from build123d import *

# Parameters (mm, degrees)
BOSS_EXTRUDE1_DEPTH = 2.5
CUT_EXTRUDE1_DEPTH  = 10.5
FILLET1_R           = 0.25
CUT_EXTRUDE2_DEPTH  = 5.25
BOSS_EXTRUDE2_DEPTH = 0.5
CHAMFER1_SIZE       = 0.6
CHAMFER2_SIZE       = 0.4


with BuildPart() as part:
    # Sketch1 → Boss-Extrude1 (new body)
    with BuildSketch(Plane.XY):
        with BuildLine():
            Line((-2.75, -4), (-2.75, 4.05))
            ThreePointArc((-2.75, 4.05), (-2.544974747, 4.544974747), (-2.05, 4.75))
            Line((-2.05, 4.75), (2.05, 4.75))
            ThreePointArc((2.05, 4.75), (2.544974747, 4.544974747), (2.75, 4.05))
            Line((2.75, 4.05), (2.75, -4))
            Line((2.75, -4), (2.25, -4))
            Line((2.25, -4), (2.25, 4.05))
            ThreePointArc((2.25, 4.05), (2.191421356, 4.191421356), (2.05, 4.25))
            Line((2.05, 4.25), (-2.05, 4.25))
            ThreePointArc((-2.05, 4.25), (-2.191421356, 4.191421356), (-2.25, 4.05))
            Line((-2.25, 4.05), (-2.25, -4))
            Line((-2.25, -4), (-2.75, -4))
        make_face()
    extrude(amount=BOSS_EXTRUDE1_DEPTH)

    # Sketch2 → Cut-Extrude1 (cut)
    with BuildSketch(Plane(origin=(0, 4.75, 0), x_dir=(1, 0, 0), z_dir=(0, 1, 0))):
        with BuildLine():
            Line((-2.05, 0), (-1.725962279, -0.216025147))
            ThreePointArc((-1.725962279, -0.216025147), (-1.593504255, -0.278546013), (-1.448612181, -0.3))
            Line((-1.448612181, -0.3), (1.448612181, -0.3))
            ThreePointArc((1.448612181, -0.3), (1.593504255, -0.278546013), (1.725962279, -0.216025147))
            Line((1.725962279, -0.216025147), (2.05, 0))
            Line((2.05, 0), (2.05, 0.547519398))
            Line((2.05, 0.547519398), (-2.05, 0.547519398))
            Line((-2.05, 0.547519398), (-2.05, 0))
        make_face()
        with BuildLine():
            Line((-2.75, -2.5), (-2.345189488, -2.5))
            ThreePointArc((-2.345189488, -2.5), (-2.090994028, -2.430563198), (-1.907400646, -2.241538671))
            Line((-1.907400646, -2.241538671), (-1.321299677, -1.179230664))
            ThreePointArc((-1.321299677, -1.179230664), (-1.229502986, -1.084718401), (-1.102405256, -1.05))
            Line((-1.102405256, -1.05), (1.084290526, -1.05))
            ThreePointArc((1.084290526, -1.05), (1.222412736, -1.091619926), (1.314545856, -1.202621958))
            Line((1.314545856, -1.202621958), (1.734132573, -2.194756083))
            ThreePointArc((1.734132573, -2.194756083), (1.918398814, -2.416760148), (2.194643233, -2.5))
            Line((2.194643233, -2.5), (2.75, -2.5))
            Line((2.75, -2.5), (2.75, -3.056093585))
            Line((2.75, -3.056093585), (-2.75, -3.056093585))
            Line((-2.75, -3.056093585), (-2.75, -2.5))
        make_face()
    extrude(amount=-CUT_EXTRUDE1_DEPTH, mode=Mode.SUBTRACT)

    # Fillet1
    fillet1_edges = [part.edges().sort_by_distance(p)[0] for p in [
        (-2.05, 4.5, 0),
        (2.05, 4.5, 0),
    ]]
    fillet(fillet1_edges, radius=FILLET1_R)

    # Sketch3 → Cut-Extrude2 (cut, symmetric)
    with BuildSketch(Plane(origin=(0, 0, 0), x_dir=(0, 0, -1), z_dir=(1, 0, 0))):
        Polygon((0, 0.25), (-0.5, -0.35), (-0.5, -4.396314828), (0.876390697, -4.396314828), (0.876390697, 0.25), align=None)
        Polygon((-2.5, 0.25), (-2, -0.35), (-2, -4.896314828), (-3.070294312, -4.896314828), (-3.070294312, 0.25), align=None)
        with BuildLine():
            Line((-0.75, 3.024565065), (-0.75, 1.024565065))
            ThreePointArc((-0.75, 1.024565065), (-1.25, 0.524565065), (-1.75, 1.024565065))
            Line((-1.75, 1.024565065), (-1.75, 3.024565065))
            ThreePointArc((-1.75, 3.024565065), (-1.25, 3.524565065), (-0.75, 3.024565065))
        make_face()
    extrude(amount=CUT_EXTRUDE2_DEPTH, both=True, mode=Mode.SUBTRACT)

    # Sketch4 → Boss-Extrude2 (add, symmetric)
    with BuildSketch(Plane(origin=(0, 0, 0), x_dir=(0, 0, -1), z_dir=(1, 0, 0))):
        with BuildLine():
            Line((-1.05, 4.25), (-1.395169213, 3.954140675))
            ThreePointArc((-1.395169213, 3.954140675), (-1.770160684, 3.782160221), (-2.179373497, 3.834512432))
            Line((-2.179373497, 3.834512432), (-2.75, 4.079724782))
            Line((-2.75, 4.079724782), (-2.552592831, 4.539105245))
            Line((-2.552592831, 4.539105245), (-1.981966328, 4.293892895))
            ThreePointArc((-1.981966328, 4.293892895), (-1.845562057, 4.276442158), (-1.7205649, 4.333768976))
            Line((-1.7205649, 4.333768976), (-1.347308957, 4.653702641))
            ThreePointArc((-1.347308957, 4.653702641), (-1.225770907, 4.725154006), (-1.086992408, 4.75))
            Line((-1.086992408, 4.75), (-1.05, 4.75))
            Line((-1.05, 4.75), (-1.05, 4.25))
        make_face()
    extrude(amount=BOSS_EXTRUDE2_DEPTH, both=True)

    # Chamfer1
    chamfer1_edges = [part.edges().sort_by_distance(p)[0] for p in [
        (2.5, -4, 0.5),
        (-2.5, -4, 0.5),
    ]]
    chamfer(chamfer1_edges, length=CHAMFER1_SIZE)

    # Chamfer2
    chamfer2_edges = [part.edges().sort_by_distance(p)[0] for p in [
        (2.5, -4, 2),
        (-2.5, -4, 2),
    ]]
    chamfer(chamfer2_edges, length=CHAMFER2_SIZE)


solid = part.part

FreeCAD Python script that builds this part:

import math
import FreeCAD as App
import Part
import Sketcher
from FreeCAD import Vector
Q = App.Units.Quantity


def edges_at(feature, points):
    """Names of the edges that pass closest to the given points."""
    edges = feature.Shape.Edges
    near = lambda p: min(range(len(edges)), key=lambda i: edges[i].distToShape(Part.Vertex(*p))[0])
    return sorted({f"Edge{near(p) + 1}" for p in points})


def add_polygon(sketch, points):
    """Adds a closed chain of lines whose ends are joined by coincident constraints."""
    first, n = sketch.GeometryCount, len(points)
    for a, b in zip(points, points[1:] + points[:1]):
        sketch.addGeometry(Part.LineSegment(App.Vector(*a, 0), App.Vector(*b, 0)), False)
    for i in range(n):
        sketch.addConstraint(Sketcher.Constraint("Coincident", first + i, 2, first + (i + 1) % n, 1))

doc = App.newDocument("Part")
params = doc.addObject("Spreadsheet::Sheet", "Params")
for row, (alias, value) in enumerate([
    ("sketch1_radius", "0.2 mm"),
    ("sketch1_radius2", "0.7 mm"),
    ("sketch1_width", "4.1 mm"),
    ("sketch1_height", "8.05 mm"),
    ("pad1_length", "2.5 mm"),
    ("sketch2_radius", "0.5 mm"),
    ("sketch2_radius2", "0.25 mm"),
    ("sketch2_width", "4.1 mm"),
    ("sketch2_width2", "5.5 mm"),
    ("pocket1_length", "10.5 mm"),
    ("fillet_radius", "0.25 mm"),
    ("sketch3_radius", "0.5 mm"),
    ("sketch3_width", "2 mm"),
    ("pocket2_length", "10.5 mm"),
    ("sketch4_radius", "0.4 mm"),
    ("sketch4_radius2", "0.25 mm"),
    ("sketch4_radius3", "0.75 mm"),
    ("sketch4_width", "0.5 mm"),
    ("pad2_length", "1 mm"),
    ("chamfer_size", "0.6 mm"),
    ("chamfer2_size", "0.4 mm"),
], start=1):
    params.set(f"A{row}", alias)
    params.set(f"B{row}", "=" + value)
    params.setAlias(f"B{row}", alias)

body = doc.addObject("PartDesign::Body", "Body")

# Sketch on XY plane
sketch1 = doc.addObject("Sketcher::SketchObject", "Sketch")
body.addObject(sketch1)
sketch1.AttachmentSupport = (doc.XY_Plane, [""])
sketch1.MapMode = "FlatFace"
sketch1.addGeometry([
    Part.LineSegment(Vector(-2.75, 4.05, 0), Vector(-2.75, -4, 0)),  # 0
    Part.LineSegment(Vector(-2.75, -4, 0), Vector(-2.25, -4, 0)),  # 1
    Part.LineSegment(Vector(-2.25, -4, 0), Vector(-2.25, 4.05, 0)),  # 2
    Part.ArcOfCircle(Part.Circle(Vector(-2.05, 4.05, 0), Vector(0, 0, 1), 0.2), math.radians(90), math.radians(180)),  # 3
    Part.LineSegment(Vector(-2.05, 4.25, 0), Vector(2.05, 4.25, 0)),  # 4
    Part.ArcOfCircle(Part.Circle(Vector(2.05, 4.05, 0), Vector(0, 0, 1), 0.2), math.radians(0), math.radians(90)),  # 5
    Part.LineSegment(Vector(2.25, 4.05, 0), Vector(2.25, -4, 0)),  # 6
    Part.LineSegment(Vector(2.25, -4, 0), Vector(2.75, -4, 0)),  # 7
    Part.LineSegment(Vector(2.75, -4, 0), Vector(2.75, 4.05, 0)),  # 8
    Part.ArcOfCircle(Part.Circle(Vector(2.05, 4.05, 0), Vector(0, 0, 1), 0.7), math.radians(0), math.radians(90)),  # 9
    Part.LineSegment(Vector(2.05, 4.75, 0), Vector(-2.05, 4.75, 0)),  # 10
    Part.ArcOfCircle(Part.Circle(Vector(-2.05, 4.05, 0), Vector(0, 0, 1), 0.7), math.radians(90), math.radians(180)),  # 11
], False)
sketch1.addConstraint([
    Sketcher.Constraint("Coincident", 0, 2, 1, 1),
    Sketcher.Constraint("Coincident", 1, 2, 2, 1),
    Sketcher.Constraint("Tangent", 2, 2, 3, 2),
    Sketcher.Constraint("Tangent", 3, 1, 4, 1),
    Sketcher.Constraint("Tangent", 4, 2, 5, 2),
    Sketcher.Constraint("Tangent", 5, 1, 6, 1),
    Sketcher.Constraint("Coincident", 6, 2, 7, 1),
    Sketcher.Constraint("Coincident", 7, 2, 8, 1),
    Sketcher.Constraint("Tangent", 8, 2, 9, 1),
    Sketcher.Constraint("Tangent", 9, 2, 10, 1),
    Sketcher.Constraint("Tangent", 10, 2, 11, 1),
    Sketcher.Constraint("Tangent", 11, 2, 0, 1),
    Sketcher.Constraint("Vertical", 0),
    Sketcher.Constraint("Horizontal", 1),
    Sketcher.Constraint("Vertical", 2),
    Sketcher.Constraint("Horizontal", 4),
    Sketcher.Constraint("Vertical", 6),
    Sketcher.Constraint("Horizontal", 7),
    Sketcher.Constraint("Vertical", 8),
    Sketcher.Constraint("Horizontal", 10),
    Sketcher.Constraint("Coincident", 9, 3, 5, 3),
    Sketcher.Constraint("Coincident", 11, 3, 3, 3),
    Sketcher.Constraint("Equal", 3, 5),
    Sketcher.Constraint("Symmetric", 1, 2, 6, 2, -2),
    Sketcher.Constraint("Radius", 3, Q("0.2 mm")),
    Sketcher.Constraint("Radius", 9, Q("0.7 mm")),
    Sketcher.Constraint("DistanceX", 4, 1, 4, 2, Q("4.1 mm")),
    Sketcher.Constraint("DistanceY", 0, 2, -1, 1, Q("4 mm")),
    Sketcher.Constraint("DistanceY", 0, 2, 0, 1, Q("8.05 mm")),
])
sketch1.setExpression("Constraints[24]", "Params.sketch1_radius")
sketch1.setExpression("Constraints[25]", "Params.sketch1_radius2")
sketch1.setExpression("Constraints[26]", "Params.sketch1_width")
sketch1.setExpression("Constraints[28]", "Params.sketch1_height")
pad1 = doc.addObject("PartDesign::Pad", "Pad")
body.addObject(pad1)
pad1.Profile = sketch1
pad1.setExpression("Length", "Params.pad1_length")

# Sketch on XZ plane
sketch2 = doc.addObject("Sketcher::SketchObject", "Sketch001")
body.addObject(sketch2)
sketch2.AttachmentSupport = (doc.XZ_Plane, [""])
sketch2.MapMode = "FlatFace"
sketch2.AttachmentOffset = App.Placement(Vector(0, 0, -4.75), App.Rotation())
sketch2.addGeometry([
    Part.LineSegment(Vector(-2.05, 0, 0), Vector(-1.73, 0.22, 0)),  # 0
    Part.ArcOfCircle(Part.Circle(Vector(-1.45, -0.2, 0), Vector(0, 0, 1), 0.5), math.radians(90), math.radians(124)),  # 1
    Part.LineSegment(Vector(-1.45, 0.3, 0), Vector(1.45, 0.3, 0)),  # 2
    Part.ArcOfCircle(Part.Circle(Vector(1.45, -0.2, 0), Vector(0, 0, 1), 0.5), math.radians(56), math.radians(90)),  # 3
    Part.LineSegment(Vector(1.73, 0.22, 0), Vector(2.05, 0, 0)),  # 4
    Part.LineSegment(Vector(2.05, 0, 0), Vector(2.05, -0.55, 0)),  # 5
    Part.LineSegment(Vector(2.05, -0.55, 0), Vector(-2.05, -0.55, 0)),  # 6
    Part.LineSegment(Vector(-2.05, -0.55, 0), Vector(-2.05, 0, 0)),  # 7
    Part.LineSegment(Vector(-2.35, 2.5, 0), Vector(-2.75, 2.5, 0)),  # 8
    Part.LineSegment(Vector(-2.75, 2.5, 0), Vector(-2.75, 3.06, 0)),  # 9
    Part.LineSegment(Vector(-2.75, 3.06, 0), Vector(2.75, 3.06, 0)),  # 10
    Part.LineSegment(Vector(2.75, 3.06, 0), Vector(2.75, 2.5, 0)),  # 11
    Part.LineSegment(Vector(2.75, 2.5, 0), Vector(2.19, 2.5, 0)),  # 12
    Part.ArcOfCircle(Part.Circle(Vector(2.19, 2, 0), Vector(0, 0, 1), 0.5), math.radians(90), math.radians(157)),  # 13
    Part.LineSegment(Vector(1.73, 2.19, 0), Vector(1.31, 1.2, 0)),  # 14
    Part.ArcOfCircle(Part.Circle(Vector(1.08, 1.3, 0), Vector(0, 0, 1), 0.25), math.radians(-90), math.radians(-23)),  # 15
    Part.LineSegment(Vector(1.08, 1.05, 0), Vector(-1.1, 1.05, 0)),  # 16
    Part.ArcOfCircle(Part.Circle(Vector(-1.1, 1.3, 0), Vector(0, 0, 1), 0.25), math.radians(-151), math.radians(-90)),  # 17
    Part.LineSegment(Vector(-1.32, 1.18, 0), Vector(-1.91, 2.24, 0)),  # 18
    Part.ArcOfCircle(Part.Circle(Vector(-2.35, 2, 0), Vector(0, 0, 1), 0.5), math.radians(29), math.radians(90)),  # 19
], False)
sketch2.addConstraint([
    Sketcher.Constraint("Tangent", 0, 2, 1, 2),
    Sketcher.Constraint("Tangent", 1, 1, 2, 1),
    Sketcher.Constraint("Tangent", 2, 2, 3, 2),
    Sketcher.Constraint("Tangent", 3, 1, 4, 1),
    Sketcher.Constraint("Coincident", 4, 2, 5, 1),
    Sketcher.Constraint("Coincident", 5, 2, 6, 1),
    Sketcher.Constraint("Coincident", 6, 2, 7, 1),
    Sketcher.Constraint("Coincident", 7, 2, 0, 1),
    Sketcher.Constraint("Coincident", 8, 2, 9, 1),
    Sketcher.Constraint("Coincident", 9, 2, 10, 1),
    Sketcher.Constraint("Coincident", 10, 2, 11, 1),
    Sketcher.Constraint("Coincident", 11, 2, 12, 1),
    Sketcher.Constraint("Tangent", 12, 2, 13, 1),
    Sketcher.Constraint("Tangent", 13, 2, 14, 1),
    Sketcher.Constraint("Tangent", 14, 2, 15, 2),
    Sketcher.Constraint("Tangent", 15, 1, 16, 1),
    Sketcher.Constraint("Tangent", 16, 2, 17, 2),
    Sketcher.Constraint("Tangent", 17, 1, 18, 1),
    Sketcher.Constraint("Tangent", 18, 2, 19, 1),
    Sketcher.Constraint("Tangent", 19, 2, 8, 1),
    Sketcher.Constraint("Horizontal", 2),
    Sketcher.Constraint("Vertical", 5),
    Sketcher.Constraint("Horizontal", 6),
    Sketcher.Constraint("Vertical", 7),
    Sketcher.Constraint("Horizontal", 8),
    Sketcher.Constraint("Vertical", 9),
    Sketcher.Constraint("Horizontal", 10),
    Sketcher.Constraint("Vertical", 11),
    Sketcher.Constraint("Horizontal", 12),
    Sketcher.Constraint("Horizontal", 16),
    Sketcher.Constraint("Equal", 1, 3),
    Sketcher.Constraint("Equal", 3, 13),
    Sketcher.Constraint("Equal", 15, 17),
    Sketcher.Constraint("Equal", 13, 19),
    Sketcher.Constraint("Symmetric", 4, 2, 7, 2, -1, 1),
    Sketcher.Constraint("Symmetric", 0, 2, 3, 1, -2),
    Sketcher.Constraint("Symmetric", 8, 2, 11, 2, -2),
    Sketcher.Constraint("Radius", 1, Q("0.5 mm")),
    Sketcher.Constraint("Radius", 15, Q("0.25 mm")),
    Sketcher.Constraint("DistanceX", 6, 2, 6, 1, Q("4.1 mm")),
    Sketcher.Constraint("DistanceX", 10, 1, 10, 2, Q("5.5 mm")),
    Sketcher.Constraint("DistanceY", -1, 1, 13, 3, Q("2 mm")),
    Sketcher.Constraint("DistanceY", 1, 1, 17, 3, Q("1 mm")),
    Sketcher.Constraint("DistanceY", 1, 3, -1, 1, Q("0.2 mm")),
    Sketcher.Constraint("DistanceX", 8, 2, 8, 1, Q("0.404811 mm")),
    Sketcher.Constraint("DistanceY", 5, 2, 5, 1, Q("0.547519 mm")),
    Sketcher.Constraint("DistanceX", 17, 1, -1, 1, Q("1.3213 mm")),
    Sketcher.Constraint("DistanceX", 19, 3, 3, 3, Q("3.793802 mm")),
    Sketcher.Constraint("Distance", 14, Q("1.077211 mm")),
    Sketcher.Constraint("DistanceX", 12, 2, 12, 1, Q("0.555357 mm")),
    Sketcher.Constraint("DistanceY", 9, 1, 9, 2, Q("0.556094 mm")),
])
sketch2.setExpression("Constraints[37]", "Params.sketch2_radius")
sketch2.setExpression("Constraints[38]", "Params.sketch2_radius2")
sketch2.setExpression("Constraints[39]", "Params.sketch2_width")
sketch2.setExpression("Constraints[40]", "Params.sketch2_width2")
pocket1 = doc.addObject("PartDesign::Pocket", "Pocket")
body.addObject(pocket1)
pocket1.Profile = sketch2
pocket1.setExpression("Length", "Params.pocket1_length")
pocket1.Reversed = True
doc.recompute()

fillet = doc.addObject("PartDesign::Fillet", "Fillet")
body.addObject(fillet)
fillet.Base = (pocket1, edges_at(pocket1, [(-2.05, 4.5, 0), (2.05, 4.5, 0)]))
fillet.setExpression("Radius", "Params.fillet_radius")

# Sketch on YZ plane
sketch3 = doc.addObject("Sketcher::SketchObject", "Sketch002")
body.addObject(sketch3)
sketch3.AttachmentSupport = (doc.YZ_Plane, [""])
sketch3.MapMode = "FlatFace"
add_polygon(sketch3, [(0.2, 0), (-0.3, 0.5), (-4.4, 0.5), (-4.4, -0.9), (0.2, -0.9)])  # lines 0-4
add_polygon(sketch3, [(-0.3, 2), (0.2, 2.5), (0.2, 3.1), (-4.9, 3.1), (-4.9, 2)])  # lines 5-9
sketch3.addGeometry(Part.LineSegment(Vector(1, 0.8, 0), Vector(3, 0.8, 0)), False)  # 10
sketch3.addGeometry(Part.ArcOfCircle(Part.Circle(Vector(3, 1.2, 0), Vector(0, 0, 1), 0.5), math.radians(-90), math.radians(90)), False)  # 11
sketch3.addGeometry(Part.LineSegment(Vector(3, 1.8, 0), Vector(1, 1.8, 0)), False)  # 12
sketch3.addGeometry(Part.ArcOfCircle(Part.Circle(Vector(1, 1.2, 0), Vector(0, 0, 1), 0.5), math.radians(90), math.radians(270)), False)  # 13
sketch3.addConstraint([
    Sketcher.Constraint("Tangent", 10, 2, 11, 1),
    Sketcher.Constraint("Tangent", 11, 2, 12, 1),
    Sketcher.Constraint("Tangent", 12, 2, 13, 1),
    Sketcher.Constraint("Tangent", 13, 2, 10, 1),
    Sketcher.Constraint("Horizontal", 1),
    Sketcher.Constraint("Vertical", 2),
    Sketcher.Constraint("Horizontal", 3),
    Sketcher.Constraint("Vertical", 4),
    Sketcher.Constraint("Vertical", 6),
    Sketcher.Constraint("Horizontal", 7),
    Sketcher.Constraint("Vertical", 8),
    Sketcher.Constraint("Horizontal", 9),
    Sketcher.Constraint("Horizontal", 10),
    Sketcher.Constraint("Horizontal", 12),
    Sketcher.Constraint("PointOnObject", 4, 2, -1),
    Sketcher.Constraint("Vertical", 4, 2, 5, 2),
    Sketcher.Constraint("Vertical", 0, 2, 9, 2),
    Sketcher.Constraint("Equal", 0, 5),
    Sketcher.Constraint("Radius", 11, Q("0.5 mm")),
    Sketcher.Constraint("DistanceX", 10, 1, 10, 2, Q("2 mm")),
    Sketcher.Constraint("DistanceY", -1, 1, 8, 2, Q("2 mm")),
    Sketcher.Constraint("DistanceY", -1, 1, 0, 2, Q("0.5 mm")),
    Sketcher.Constraint("DistanceX", 0, 2, 3, 2, Q("0.6 mm")),
    Sketcher.Constraint("DistanceX", 7, 2, 1, 2, Q("0.5 mm")),
    Sketcher.Constraint("DistanceY", -1, 1, 11, 3, Q("1.25 mm")),
    Sketcher.Constraint("DistanceX", 0, 2, -1, 1, Q("0.35 mm")),
    Sketcher.Constraint("DistanceY", 2, 2, 2, 1, Q("1.376391 mm")),
    Sketcher.Constraint("DistanceX", 1, 2, 1, 1, Q("4.046315 mm")),
    Sketcher.Constraint("DistanceY", 6, 1, 6, 2, Q("0.570294 mm")),
    Sketcher.Constraint("DistanceX", 1, 2, 13, 3, Q("5.42088 mm")),
])
sketch3.setExpression("Constraints[28]", "Params.sketch3_radius")
sketch3.setExpression("Constraints[29]", "Params.sketch3_width")
pocket2 = doc.addObject("PartDesign::Pocket", "Pocket001")
body.addObject(pocket2)
pocket2.Profile = sketch3
pocket2.setExpression("Length", "Params.pocket2_length")
pocket2.Midplane = True

# Sketch on YZ plane
sketch4 = doc.addObject("Sketcher::SketchObject", "Sketch003")
body.addObject(sketch4)
sketch4.AttachmentSupport = (doc.YZ_Plane, [""])
sketch4.MapMode = "FlatFace"
sketch4.addGeometry([
    Part.LineSegment(Vector(3.954, 1.395, 0), Vector(4.25, 1.05, 0)),  # 0
    Part.LineSegment(Vector(4.25, 1.05, 0), Vector(4.75, 1.05, 0)),  # 1
    Part.LineSegment(Vector(4.75, 1.05, 0), Vector(4.75, 1.087, 0)),  # 2
    Part.ArcOfCircle(Part.Circle(Vector(4.35, 1.087, 0), Vector(0, 0, 1), 0.4), math.radians(0), math.radians(41)),  # 3
    Part.LineSegment(Vector(4.654, 1.347, 0), Vector(4.334, 1.721, 0)),  # 4
    Part.ArcOfCircle(Part.Circle(Vector(4.524, 1.883, 0), Vector(0, 0, 1), 0.25), math.radians(157), math.radians(221)),  # 5
    Part.LineSegment(Vector(4.294, 1.982, 0), Vector(4.539, 2.553, 0)),  # 6
    Part.LineSegment(Vector(4.539, 2.553, 0), Vector(4.08, 2.75, 0)),  # 7
    Part.LineSegment(Vector(4.08, 2.75, 0), Vector(3.835, 2.179, 0)),  # 8
    Part.ArcOfCircle(Part.Circle(Vector(4.524, 1.883, 0), Vector(0, 0, 1), 0.75), math.radians(157), math.radians(221)),  # 9
], False)
sketch4.addConstraint([
    Sketcher.Constraint("Coincident", 0, 2, 1, 1),
    Sketcher.Constraint("Coincident", 1, 2, 2, 1),
    Sketcher.Constraint("Tangent", 2, 2, 3, 1),
    Sketcher.Constraint("Tangent", 3, 2, 4, 1),
    Sketcher.Constraint("Tangent", 4, 2, 5, 2),
    Sketcher.Constraint("Tangent", 5, 1, 6, 1),
    Sketcher.Constraint("Coincident", 6, 2, 7, 1),
    Sketcher.Constraint("Coincident", 7, 2, 8, 1),
    Sketcher.Constraint("Tangent", 8, 2, 9, 1),
    Sketcher.Constraint("Tangent", 9, 2, 0, 1),
    Sketcher.Constraint("Horizontal", 1),
    Sketcher.Constraint("Vertical", 2),
    Sketcher.Constraint("Coincident", 9, 3, 5, 3),
    Sketcher.Constraint("Parallel", 0, 4),
    Sketcher.Constraint("Perpendicular", 6, 7),
    Sketcher.Constraint("Perpendicular", 7, 8),
    Sketcher.Constraint("Radius", 3, Q("0.4 mm")),
    Sketcher.Constraint("Radius", 5, Q("0.25 mm")),
    Sketcher.Constraint("Radius", 9, Q("0.75 mm")),
    Sketcher.Constraint("DistanceX", 1, 1, 1, 2, Q("0.5 mm")),
    Sketcher.Constraint("DistanceX", -1, 1, 3, 3, Q("4.35 mm")),
    Sketcher.Constraint("DistanceY", -1, 1, 0, 2, Q("1.05 mm")),
    Sketcher.Constraint("DistanceY", -1, 1, 7, 2, Q("2.75 mm")),
    Sketcher.Constraint("DistanceY", 4, 2, 5, 1, Q("0.261401 mm")),
    Sketcher.Constraint("DistanceY", 2, 1, 2, 2, Q("0.036992 mm")),
    Sketcher.Constraint("DistanceX", -1, 1, 4, 2, Q("4.333769 mm")),
])
sketch4.setExpression("Constraints[16]", "Params.sketch4_radius")
sketch4.setExpression("Constraints[17]", "Params.sketch4_radius2")
sketch4.setExpression("Constraints[18]", "Params.sketch4_radius3")
sketch4.setExpression("Constraints[19]", "Params.sketch4_width")
pad2 = doc.addObject("PartDesign::Pad", "Pad001")
body.addObject(pad2)
pad2.Profile = sketch4
pad2.setExpression("Length", "Params.pad2_length")
pad2.Midplane = True
doc.recompute()

chamfer = doc.addObject("PartDesign::Chamfer", "Chamfer")
body.addObject(chamfer)
chamfer.Base = (pad2, edges_at(pad2, [(2.5, -4, 0.5), (-2.5, -4, 0.5)]))
chamfer.setExpression("Size", "Params.chamfer_size")
doc.recompute()

chamfer2 = doc.addObject("PartDesign::Chamfer", "Chamfer001")
body.addObject(chamfer2)
chamfer2.Base = (chamfer, edges_at(chamfer, [(2.5, -4, 2), (-2.5, -4, 2)]))
chamfer2.setExpression("Size", "Params.chamfer2_size")

doc.recompute()
